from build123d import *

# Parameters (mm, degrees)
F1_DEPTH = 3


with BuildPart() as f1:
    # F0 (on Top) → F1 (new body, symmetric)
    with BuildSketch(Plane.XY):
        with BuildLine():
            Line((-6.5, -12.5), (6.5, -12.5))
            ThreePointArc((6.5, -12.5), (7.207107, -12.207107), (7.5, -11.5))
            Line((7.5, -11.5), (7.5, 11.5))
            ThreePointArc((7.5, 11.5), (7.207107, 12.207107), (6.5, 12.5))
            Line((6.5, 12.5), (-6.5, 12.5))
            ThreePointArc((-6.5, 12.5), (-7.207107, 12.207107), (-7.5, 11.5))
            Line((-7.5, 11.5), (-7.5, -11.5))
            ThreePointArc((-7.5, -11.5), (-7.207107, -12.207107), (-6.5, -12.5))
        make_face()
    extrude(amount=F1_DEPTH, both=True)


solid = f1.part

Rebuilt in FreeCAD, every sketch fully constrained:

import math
import FreeCAD as App
import Part
import Sketcher

V = App.Vector

doc = App.newDocument("Part")
body = doc.addObject("PartDesign::Body", "Body")

sketch1 = body.newObject("Sketcher::SketchObject", "Sketch")
sketch1.AttachmentSupport = (doc.getObject("XY_Plane"), [""])
sketch1.MapMode = "FlatFace"
sketch1.addGeometry(Part.LineSegment(V(-6.5, -12.5, 0), V(6.5, -12.5, 0)), False)
sketch1.addGeometry(Part.ArcOfCircle(Part.Circle(V(6.500001, -11.500001, 0), V(0, 0, 1), 0.999999), math.radians(-90.000043), math.radians(0.000043)), False)
sketch1.addGeometry(Part.LineSegment(V(7.5, -11.5, 0), V(7.5, 11.5, 0)), False)
sketch1.addGeometry(Part.ArcOfCircle(Part.Circle(V(6.500001, 11.500001, 0), V(0, 0, 1), 0.999999), math.radians(-0.000043), math.radians(90.000043)), False)
sketch1.addGeometry(Part.LineSegment(V(6.5, 12.5, 0), V(-6.5, 12.5, 0)), False)
sketch1.addGeometry(Part.ArcOfCircle(Part.Circle(V(-6.500001, 11.500001, 0), V(0, 0, 1), 0.999999), math.radians(89.999957), math.radians(180.000043)), False)
sketch1.addGeometry(Part.LineSegment(V(-7.5, 11.5, 0), V(-7.5, -11.5, 0)), False)
sketch1.addGeometry(Part.ArcOfCircle(Part.Circle(V(-6.500001, -11.500001, 0), V(0, 0, 1), 0.999999), math.radians(179.999957), math.radians(270.000043)), False)
sketch1.addConstraint(Sketcher.Constraint("Tangent", 0, 2, 1, 1))
sketch1.addConstraint(Sketcher.Constraint("Tangent", 1, 2, 2, 1))
sketch1.addConstraint(Sketcher.Constraint("Tangent", 2, 2, 3, 1))
sketch1.addConstraint(Sketcher.Constraint("Tangent", 3, 2, 4, 1))
sketch1.addConstraint(Sketcher.Constraint("Tangent", 4, 2, 5, 1))
sketch1.addConstraint(Sketcher.Constraint("Tangent", 5, 2, 6, 1))
sketch1.addConstraint(Sketcher.Constraint("Tangent", 6, 2, 7, 1))
sketch1.addConstraint(Sketcher.Constraint("Tangent", 7, 2, 0, 1))
sketch1.addConstraint(Sketcher.Constraint("Horizontal", 0))
sketch1.addConstraint(Sketcher.Constraint("Vertical", 2))
sketch1.addConstraint(Sketcher.Constraint("Horizontal", 4))
sketch1.addConstraint(Sketcher.Constraint("Vertical", 6))
sketch1.addConstraint(Sketcher.Constraint("Equal", 1, 3))
sketch1.addConstraint(Sketcher.Constraint("Equal", 3, 5))
sketch1.addConstraint(Sketcher.Constraint("Equal", 5, 7))
sketch1.addConstraint(Sketcher.Constraint("Symmetric", 1, 3, 5, 3, -1, 1))
sketch1.addConstraint(Sketcher.Constraint("Radius", 1, 0.999999))
sketch1.addConstraint(Sketcher.Constraint("DistanceX", 0, 1, 0, 2, 13.0))
sketch1.addConstraint(Sketcher.Constraint("DistanceY", 2, 1, 2, 2, 23.0))
pad1 = body.newObject("PartDesign::Pad", "Pad")
pad1.Profile = sketch1
pad1.Length = 6
pad1.Midplane = True

doc.recompute()
